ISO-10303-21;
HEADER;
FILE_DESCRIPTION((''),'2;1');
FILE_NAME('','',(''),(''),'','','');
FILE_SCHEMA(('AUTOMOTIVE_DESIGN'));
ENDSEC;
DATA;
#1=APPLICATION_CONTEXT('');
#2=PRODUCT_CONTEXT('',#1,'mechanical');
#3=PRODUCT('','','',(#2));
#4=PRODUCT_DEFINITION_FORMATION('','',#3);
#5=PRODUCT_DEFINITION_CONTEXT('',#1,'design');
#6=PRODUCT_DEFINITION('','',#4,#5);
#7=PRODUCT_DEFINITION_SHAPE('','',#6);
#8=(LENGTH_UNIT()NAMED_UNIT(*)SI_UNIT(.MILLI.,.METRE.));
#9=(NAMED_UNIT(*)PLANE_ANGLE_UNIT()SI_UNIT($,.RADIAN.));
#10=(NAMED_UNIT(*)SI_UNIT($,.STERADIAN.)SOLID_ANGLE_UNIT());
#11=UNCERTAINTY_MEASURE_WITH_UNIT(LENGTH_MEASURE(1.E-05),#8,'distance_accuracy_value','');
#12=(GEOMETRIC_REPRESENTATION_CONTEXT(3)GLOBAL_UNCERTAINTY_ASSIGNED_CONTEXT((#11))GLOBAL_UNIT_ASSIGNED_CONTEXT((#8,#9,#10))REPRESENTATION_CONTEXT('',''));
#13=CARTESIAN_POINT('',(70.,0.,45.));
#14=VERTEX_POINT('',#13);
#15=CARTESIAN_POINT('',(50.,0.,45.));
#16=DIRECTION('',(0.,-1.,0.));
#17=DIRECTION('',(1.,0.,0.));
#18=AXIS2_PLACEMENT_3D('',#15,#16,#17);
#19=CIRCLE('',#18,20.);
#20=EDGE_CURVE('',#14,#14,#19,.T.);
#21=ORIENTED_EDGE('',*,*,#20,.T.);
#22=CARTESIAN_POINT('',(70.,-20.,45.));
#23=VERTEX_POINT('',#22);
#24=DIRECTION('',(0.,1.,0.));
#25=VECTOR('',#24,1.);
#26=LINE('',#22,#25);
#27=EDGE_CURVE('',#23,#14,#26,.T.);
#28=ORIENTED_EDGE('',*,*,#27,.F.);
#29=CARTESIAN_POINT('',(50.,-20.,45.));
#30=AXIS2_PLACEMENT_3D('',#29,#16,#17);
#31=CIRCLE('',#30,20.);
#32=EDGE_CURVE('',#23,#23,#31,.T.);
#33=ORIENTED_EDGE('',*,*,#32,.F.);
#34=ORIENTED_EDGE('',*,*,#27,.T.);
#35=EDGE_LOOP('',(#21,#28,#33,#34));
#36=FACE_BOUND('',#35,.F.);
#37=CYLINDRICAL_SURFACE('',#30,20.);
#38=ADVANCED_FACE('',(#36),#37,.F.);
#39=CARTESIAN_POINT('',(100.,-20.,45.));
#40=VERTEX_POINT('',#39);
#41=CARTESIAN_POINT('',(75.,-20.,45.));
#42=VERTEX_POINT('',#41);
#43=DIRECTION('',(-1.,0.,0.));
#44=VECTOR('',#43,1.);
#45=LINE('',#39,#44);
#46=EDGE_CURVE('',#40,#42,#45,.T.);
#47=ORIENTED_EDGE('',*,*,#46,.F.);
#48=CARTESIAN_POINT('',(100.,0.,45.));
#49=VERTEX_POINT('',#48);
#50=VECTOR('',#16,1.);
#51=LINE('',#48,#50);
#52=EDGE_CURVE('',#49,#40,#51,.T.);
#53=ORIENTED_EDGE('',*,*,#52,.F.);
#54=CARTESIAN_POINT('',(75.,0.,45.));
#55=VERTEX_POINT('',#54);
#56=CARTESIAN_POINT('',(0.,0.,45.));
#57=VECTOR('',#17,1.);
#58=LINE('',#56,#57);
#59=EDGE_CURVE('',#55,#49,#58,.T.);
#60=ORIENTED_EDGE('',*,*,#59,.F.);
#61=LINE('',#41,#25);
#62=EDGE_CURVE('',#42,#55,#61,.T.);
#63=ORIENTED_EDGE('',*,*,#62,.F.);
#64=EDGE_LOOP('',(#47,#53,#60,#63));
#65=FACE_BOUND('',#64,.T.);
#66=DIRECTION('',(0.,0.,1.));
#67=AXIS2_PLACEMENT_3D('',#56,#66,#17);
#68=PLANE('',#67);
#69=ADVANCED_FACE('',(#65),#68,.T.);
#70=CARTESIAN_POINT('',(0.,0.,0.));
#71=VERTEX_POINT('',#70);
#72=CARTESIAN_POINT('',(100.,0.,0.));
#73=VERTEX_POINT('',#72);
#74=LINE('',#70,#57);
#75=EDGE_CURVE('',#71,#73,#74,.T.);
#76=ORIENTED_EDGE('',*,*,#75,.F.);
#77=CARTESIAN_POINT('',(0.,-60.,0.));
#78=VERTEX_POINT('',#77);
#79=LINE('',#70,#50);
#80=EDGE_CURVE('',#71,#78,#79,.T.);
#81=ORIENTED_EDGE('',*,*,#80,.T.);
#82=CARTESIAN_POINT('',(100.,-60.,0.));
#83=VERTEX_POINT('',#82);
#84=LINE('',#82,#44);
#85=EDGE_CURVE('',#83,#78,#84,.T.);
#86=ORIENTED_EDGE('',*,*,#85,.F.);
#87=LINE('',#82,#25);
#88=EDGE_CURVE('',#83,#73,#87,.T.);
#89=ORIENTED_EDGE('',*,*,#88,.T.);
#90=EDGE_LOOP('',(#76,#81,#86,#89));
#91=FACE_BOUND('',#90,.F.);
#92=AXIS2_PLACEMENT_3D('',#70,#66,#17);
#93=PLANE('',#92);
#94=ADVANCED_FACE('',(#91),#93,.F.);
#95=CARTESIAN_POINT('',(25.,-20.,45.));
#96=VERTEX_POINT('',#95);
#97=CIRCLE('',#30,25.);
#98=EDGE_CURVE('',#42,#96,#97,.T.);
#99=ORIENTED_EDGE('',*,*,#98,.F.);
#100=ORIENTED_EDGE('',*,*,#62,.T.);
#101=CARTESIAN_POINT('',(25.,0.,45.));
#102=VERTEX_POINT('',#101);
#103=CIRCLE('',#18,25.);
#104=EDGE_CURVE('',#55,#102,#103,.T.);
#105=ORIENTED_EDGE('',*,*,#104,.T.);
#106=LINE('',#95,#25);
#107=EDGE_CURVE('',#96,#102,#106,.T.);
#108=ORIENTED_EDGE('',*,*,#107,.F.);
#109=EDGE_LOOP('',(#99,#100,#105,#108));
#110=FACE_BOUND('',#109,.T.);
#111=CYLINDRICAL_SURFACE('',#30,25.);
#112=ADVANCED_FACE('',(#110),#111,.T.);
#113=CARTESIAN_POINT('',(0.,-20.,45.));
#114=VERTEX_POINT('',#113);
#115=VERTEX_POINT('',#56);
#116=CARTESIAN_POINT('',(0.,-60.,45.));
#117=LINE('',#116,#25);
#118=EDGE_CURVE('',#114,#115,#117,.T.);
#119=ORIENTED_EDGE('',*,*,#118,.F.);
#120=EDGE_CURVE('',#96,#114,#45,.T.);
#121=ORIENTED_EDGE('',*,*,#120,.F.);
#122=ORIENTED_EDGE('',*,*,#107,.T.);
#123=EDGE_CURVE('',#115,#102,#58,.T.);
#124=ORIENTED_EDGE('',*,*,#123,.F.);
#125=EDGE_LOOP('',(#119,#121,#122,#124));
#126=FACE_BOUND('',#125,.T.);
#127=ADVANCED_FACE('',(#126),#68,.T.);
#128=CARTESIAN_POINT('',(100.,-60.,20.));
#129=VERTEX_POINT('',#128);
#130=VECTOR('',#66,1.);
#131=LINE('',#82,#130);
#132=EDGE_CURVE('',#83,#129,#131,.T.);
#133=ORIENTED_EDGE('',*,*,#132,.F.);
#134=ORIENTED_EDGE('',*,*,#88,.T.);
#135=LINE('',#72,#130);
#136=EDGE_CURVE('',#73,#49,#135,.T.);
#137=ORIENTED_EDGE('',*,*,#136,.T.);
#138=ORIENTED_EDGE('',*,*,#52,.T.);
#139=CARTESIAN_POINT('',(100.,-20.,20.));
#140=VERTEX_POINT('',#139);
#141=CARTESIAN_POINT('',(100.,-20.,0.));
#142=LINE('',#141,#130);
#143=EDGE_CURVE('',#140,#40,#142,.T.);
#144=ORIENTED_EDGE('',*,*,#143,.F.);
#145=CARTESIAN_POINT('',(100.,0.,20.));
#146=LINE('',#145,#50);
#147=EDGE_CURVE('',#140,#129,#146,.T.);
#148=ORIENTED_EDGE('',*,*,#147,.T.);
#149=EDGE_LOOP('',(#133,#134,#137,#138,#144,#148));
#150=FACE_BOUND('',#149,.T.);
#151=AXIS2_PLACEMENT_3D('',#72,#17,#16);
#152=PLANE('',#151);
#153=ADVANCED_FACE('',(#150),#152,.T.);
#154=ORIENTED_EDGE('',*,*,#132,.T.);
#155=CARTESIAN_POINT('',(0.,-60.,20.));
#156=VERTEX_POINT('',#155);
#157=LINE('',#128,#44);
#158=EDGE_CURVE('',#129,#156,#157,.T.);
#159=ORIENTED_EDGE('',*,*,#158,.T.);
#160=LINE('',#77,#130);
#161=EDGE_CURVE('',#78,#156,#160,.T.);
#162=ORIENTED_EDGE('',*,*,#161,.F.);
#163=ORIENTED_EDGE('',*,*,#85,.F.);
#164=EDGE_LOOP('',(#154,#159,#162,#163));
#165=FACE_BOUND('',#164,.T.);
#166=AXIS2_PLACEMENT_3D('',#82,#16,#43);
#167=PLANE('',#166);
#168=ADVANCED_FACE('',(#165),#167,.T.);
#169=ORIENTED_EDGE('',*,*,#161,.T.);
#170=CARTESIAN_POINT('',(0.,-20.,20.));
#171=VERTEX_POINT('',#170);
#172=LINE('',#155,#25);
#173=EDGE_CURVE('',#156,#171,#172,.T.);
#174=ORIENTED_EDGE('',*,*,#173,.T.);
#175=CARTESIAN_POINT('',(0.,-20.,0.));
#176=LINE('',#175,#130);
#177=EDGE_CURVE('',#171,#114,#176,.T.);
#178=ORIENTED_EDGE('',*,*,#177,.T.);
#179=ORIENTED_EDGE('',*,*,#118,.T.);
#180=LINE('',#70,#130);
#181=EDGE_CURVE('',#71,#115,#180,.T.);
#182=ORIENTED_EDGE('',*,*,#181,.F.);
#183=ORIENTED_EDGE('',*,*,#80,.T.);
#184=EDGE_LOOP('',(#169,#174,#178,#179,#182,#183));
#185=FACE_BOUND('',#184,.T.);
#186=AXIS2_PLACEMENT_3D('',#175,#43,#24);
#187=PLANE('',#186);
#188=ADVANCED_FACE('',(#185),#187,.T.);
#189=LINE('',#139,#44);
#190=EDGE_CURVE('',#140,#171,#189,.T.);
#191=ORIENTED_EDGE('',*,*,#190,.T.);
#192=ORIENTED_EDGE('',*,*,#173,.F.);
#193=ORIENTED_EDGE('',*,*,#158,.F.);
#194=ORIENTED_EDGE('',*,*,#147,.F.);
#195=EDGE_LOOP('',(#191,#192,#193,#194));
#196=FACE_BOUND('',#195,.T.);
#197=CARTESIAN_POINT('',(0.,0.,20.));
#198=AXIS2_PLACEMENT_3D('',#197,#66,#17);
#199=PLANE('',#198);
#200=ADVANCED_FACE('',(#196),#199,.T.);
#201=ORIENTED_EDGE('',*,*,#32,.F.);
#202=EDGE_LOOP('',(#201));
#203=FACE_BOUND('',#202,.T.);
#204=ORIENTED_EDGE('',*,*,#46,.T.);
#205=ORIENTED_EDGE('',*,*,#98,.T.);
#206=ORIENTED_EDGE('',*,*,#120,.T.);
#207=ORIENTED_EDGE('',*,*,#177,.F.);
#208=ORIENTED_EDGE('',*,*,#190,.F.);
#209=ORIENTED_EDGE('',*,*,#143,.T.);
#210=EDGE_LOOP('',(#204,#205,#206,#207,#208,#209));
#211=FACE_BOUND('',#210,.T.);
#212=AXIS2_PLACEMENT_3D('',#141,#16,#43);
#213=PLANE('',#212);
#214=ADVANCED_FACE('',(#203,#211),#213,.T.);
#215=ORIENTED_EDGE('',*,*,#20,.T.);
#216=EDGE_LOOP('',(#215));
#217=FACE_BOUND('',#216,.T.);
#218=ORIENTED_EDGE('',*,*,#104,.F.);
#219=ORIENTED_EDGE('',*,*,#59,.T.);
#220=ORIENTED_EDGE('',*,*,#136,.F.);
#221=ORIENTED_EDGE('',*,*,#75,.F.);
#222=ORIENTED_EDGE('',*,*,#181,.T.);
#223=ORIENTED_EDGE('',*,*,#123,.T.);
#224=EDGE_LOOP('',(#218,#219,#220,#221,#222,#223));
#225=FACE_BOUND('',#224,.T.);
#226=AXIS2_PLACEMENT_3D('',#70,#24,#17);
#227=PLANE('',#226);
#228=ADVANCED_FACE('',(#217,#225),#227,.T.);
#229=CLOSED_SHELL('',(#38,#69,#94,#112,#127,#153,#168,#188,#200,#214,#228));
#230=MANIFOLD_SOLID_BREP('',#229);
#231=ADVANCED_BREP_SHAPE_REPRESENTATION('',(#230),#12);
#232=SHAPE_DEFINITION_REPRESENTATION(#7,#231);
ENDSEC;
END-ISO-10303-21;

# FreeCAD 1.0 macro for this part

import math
import FreeCAD as App
import Part
import Sketcher
from FreeCAD import Vector


def add_polygon(sketch, points):
    """Adds a closed chain of lines whose ends are joined by coincident constraints."""
    first, n = sketch.GeometryCount, len(points)
    for a, b in zip(points, points[1:] + points[:1]):
        sketch.addGeometry(Part.LineSegment(App.Vector(*a, 0), App.Vector(*b, 0)), False)
    for i in range(n):
        sketch.addConstraint(Sketcher.Constraint("Coincident", first + i, 2, first + (i + 1) % n, 1))

doc = App.newDocument("Part")
body = doc.addObject("PartDesign::Body", "Body")

# Sketch on XY plane
sketch1 = body.newObject("Sketcher::SketchObject", "Sketch")
sketch1.AttachmentSupport = (doc.getObject("XY_Plane"), [""])
sketch1.MapMode = "FlatFace"
add_polygon(sketch1, [(100, 0), (0, 0), (0, -20), (100, -20)])  # lines 0-3
sketch1.addConstraint([
    Sketcher.Constraint("Horizontal", 0),
    Sketcher.Constraint("Vertical", 1),
    Sketcher.Constraint("Horizontal", 2),
    Sketcher.Constraint("Vertical", 3),
    Sketcher.Constraint("Coincident", 0, 2, -1, 1),
    Sketcher.Constraint("DistanceX", 0, 2, 0, 1, 100.0),
    Sketcher.Constraint("DistanceY", 1, 2, 1, 1, 20.0),
])
pad1 = body.newObject("PartDesign::Pad", "Pad")
pad1.Profile = sketch1
pad1.Length = 45

# Sketch on XY plane
sketch2 = body.newObject("Sketcher::SketchObject", "Sketch001")
sketch2.AttachmentSupport = (doc.getObject("XY_Plane"), [""])
sketch2.MapMode = "FlatFace"
add_polygon(sketch2, [(100, -20), (0, -20), (0, -60), (100, -60)])  # lines 0-3
sketch2.addConstraint([
    Sketcher.Constraint("Horizontal", 0),
    Sketcher.Constraint("Vertical", 1),
    Sketcher.Constraint("Horizontal", 2),
    Sketcher.Constraint("Vertical", 3),
    Sketcher.Constraint("PointOnObject", 0, 2, -2),
    Sketcher.Constraint("DistanceX", 0, 2, 0, 1, 100.0),
    Sketcher.Constraint("DistanceY", 0, 2, -1, 1, 20.0),
    Sketcher.Constraint("DistanceY", 1, 2, 1, 1, 40.0),
])
pad2 = body.newObject("PartDesign::Pad", "Pad001")
pad2.Profile = sketch2
pad2.Length = 20

# Sketch on XZ plane
sketch3 = body.newObject("Sketcher::SketchObject", "Sketch002")
sketch3.AttachmentSupport = (doc.getObject("XZ_Plane"), [""])
sketch3.MapMode = "FlatFace"
sketch3.AttachmentOffset = App.Placement(Vector(0, 0, 20), App.Rotation())
sketch3.addGeometry([
    Part.ArcOfCircle(Part.Circle(Vector(50, 45, 0), Vector(0, 0, 1), 25), math.radians(0), math.radians(180)),
    Part.LineSegment(Vector(25, 45, 0), Vector(30, 45, 0)),
    Part.ArcOfCircle(Part.Circle(Vector(50, 45, 0), Vector(0, 0, 1), 20), math.radians(0), math.radians(180)),
    Part.LineSegment(Vector(70, 45, 0), Vector(75, 45, 0)),
], False)
sketch3.addConstraint([
    Sketcher.Constraint("Coincident", 0, 2, 1, 1),
    Sketcher.Constraint("Coincident", 1, 2, 2, 2),
    Sketcher.Constraint("Coincident", 2, 1, 3, 1),
    Sketcher.Constraint("Coincident", 3, 2, 0, 1),
    Sketcher.Constraint("Horizontal", 1),
    Sketcher.Constraint("Horizontal", 3),
    Sketcher.Constraint("Coincident", 2, 3, 0, 3),
    Sketcher.Constraint("Horizontal", 2, 3, 0, 2),
    Sketcher.Constraint("Horizontal", 1, 2, 2, 1),
    Sketcher.Constraint("Radius", 0, 25.0),
    Sketcher.Constraint("Radius", 2, 20.0),
    Sketcher.Constraint("DistanceX", -1, 1, 0, 3, 50.0),
    Sketcher.Constraint("DistanceY", -1, 1, 0, 3, 45.0),
])
pad3 = body.newObject("PartDesign::Pad", "Pad002")
pad3.Profile = sketch3
pad3.Length = 20
pad3.Reversed = True

# Sketch on XZ plane
sketch4 = body.newObject("Sketcher::SketchObject", "Sketch003")
sketch4.AttachmentSupport = (doc.getObject("XZ_Plane"), [""])
sketch4.MapMode = "FlatFace"
sketch4.AttachmentOffset = App.Placement(Vector(0, 0, 20), App.Rotation())
sketch4.addGeometry([
    Part.LineSegment(Vector(70, 45, 0), Vector(30, 45, 0)),
    Part.ArcOfCircle(Part.Circle(Vector(50, 45, 0), Vector(0, 0, 1), 20), math.radians(180), math.radians(360)),
], False)
sketch4.addConstraint([
    Sketcher.Constraint("Coincident", 0, 1, 1, 2),
    Sketcher.Constraint("Coincident", 1, 1, 0, 2),
    Sketcher.Constraint("Horizontal", 0),
    Sketcher.Constraint("Horizontal", 1, 3, 0, 1),
    Sketcher.Constraint("Radius", 1, 20.0),
    Sketcher.Constraint("DistanceX", -1, 1, 1, 3, 50.0),
    Sketcher.Constraint("DistanceY", -1, 1, 1, 3, 45.0),
])
pocket1 = body.newObject("PartDesign::Pocket", "Pocket")
pocket1.Profile = sketch4
pocket1.Length = 20

doc.recompute()
